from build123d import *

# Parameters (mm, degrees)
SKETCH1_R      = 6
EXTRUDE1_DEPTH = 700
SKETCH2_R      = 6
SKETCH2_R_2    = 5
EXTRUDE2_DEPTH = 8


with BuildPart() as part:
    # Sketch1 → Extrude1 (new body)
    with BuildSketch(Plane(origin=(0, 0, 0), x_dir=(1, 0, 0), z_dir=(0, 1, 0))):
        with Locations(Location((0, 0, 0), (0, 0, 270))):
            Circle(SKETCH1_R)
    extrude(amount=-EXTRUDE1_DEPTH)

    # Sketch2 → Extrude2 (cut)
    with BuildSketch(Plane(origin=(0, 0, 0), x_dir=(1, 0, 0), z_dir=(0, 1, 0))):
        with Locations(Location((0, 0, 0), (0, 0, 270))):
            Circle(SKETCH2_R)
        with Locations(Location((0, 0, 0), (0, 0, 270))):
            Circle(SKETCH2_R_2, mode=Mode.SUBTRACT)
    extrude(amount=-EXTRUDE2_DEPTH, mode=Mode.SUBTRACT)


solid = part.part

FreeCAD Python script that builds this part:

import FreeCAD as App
import Part
import Sketcher

V = App.Vector

doc = App.newDocument("Part")
body = doc.addObject("PartDesign::Body", "Body")

sketch1 = body.newObject("Sketcher::SketchObject", "Sketch")
sketch1.AttachmentSupport = (doc.getObject("XZ_Plane"), [""])
sketch1.MapMode = "FlatFace"
sketch1.addGeometry(Part.Circle(V(0, 0, 0), V(0, 0, 1), 6), False)
sketch1.addConstraint(Sketcher.Constraint("Coincident", 0, 3, -1, 1))
sketch1.addConstraint(Sketcher.Constraint("Diameter", 0, 12.0))
pad1 = body.newObject("PartDesign::Pad", "Pad")
pad1.Profile = sketch1
pad1.Length = 700

sketch2 = body.newObject("Sketcher::SketchObject", "Sketch001")
sketch2.AttachmentSupport = (doc.getObject("XZ_Plane"), [""])
sketch2.MapMode = "FlatFace"
sketch2.addGeometry(Part.Circle(V(0, 0, 0), V(0, 0, 1), 6), False)
sketch2.addGeometry(Part.Circle(V(0, 0, 0), V(0, 0, 1), 5), False)
sketch2.addConstraint(Sketcher.Constraint("Coincident", 0, 3, -1, 1))
sketch2.addConstraint(Sketcher.Constraint("Coincident", 1, 3, -1, 1))
sketch2.addConstraint(Sketcher.Constraint("Diameter", 0, 12.0))
sketch2.addConstraint(Sketcher.Constraint("Diameter", 1, 10.0))
pocket1 = body.newObject("PartDesign::Pocket", "Pocket")
pocket1.Profile = sketch2
pocket1.Length = 8
pocket1.Reversed = True

doc.recompute()
